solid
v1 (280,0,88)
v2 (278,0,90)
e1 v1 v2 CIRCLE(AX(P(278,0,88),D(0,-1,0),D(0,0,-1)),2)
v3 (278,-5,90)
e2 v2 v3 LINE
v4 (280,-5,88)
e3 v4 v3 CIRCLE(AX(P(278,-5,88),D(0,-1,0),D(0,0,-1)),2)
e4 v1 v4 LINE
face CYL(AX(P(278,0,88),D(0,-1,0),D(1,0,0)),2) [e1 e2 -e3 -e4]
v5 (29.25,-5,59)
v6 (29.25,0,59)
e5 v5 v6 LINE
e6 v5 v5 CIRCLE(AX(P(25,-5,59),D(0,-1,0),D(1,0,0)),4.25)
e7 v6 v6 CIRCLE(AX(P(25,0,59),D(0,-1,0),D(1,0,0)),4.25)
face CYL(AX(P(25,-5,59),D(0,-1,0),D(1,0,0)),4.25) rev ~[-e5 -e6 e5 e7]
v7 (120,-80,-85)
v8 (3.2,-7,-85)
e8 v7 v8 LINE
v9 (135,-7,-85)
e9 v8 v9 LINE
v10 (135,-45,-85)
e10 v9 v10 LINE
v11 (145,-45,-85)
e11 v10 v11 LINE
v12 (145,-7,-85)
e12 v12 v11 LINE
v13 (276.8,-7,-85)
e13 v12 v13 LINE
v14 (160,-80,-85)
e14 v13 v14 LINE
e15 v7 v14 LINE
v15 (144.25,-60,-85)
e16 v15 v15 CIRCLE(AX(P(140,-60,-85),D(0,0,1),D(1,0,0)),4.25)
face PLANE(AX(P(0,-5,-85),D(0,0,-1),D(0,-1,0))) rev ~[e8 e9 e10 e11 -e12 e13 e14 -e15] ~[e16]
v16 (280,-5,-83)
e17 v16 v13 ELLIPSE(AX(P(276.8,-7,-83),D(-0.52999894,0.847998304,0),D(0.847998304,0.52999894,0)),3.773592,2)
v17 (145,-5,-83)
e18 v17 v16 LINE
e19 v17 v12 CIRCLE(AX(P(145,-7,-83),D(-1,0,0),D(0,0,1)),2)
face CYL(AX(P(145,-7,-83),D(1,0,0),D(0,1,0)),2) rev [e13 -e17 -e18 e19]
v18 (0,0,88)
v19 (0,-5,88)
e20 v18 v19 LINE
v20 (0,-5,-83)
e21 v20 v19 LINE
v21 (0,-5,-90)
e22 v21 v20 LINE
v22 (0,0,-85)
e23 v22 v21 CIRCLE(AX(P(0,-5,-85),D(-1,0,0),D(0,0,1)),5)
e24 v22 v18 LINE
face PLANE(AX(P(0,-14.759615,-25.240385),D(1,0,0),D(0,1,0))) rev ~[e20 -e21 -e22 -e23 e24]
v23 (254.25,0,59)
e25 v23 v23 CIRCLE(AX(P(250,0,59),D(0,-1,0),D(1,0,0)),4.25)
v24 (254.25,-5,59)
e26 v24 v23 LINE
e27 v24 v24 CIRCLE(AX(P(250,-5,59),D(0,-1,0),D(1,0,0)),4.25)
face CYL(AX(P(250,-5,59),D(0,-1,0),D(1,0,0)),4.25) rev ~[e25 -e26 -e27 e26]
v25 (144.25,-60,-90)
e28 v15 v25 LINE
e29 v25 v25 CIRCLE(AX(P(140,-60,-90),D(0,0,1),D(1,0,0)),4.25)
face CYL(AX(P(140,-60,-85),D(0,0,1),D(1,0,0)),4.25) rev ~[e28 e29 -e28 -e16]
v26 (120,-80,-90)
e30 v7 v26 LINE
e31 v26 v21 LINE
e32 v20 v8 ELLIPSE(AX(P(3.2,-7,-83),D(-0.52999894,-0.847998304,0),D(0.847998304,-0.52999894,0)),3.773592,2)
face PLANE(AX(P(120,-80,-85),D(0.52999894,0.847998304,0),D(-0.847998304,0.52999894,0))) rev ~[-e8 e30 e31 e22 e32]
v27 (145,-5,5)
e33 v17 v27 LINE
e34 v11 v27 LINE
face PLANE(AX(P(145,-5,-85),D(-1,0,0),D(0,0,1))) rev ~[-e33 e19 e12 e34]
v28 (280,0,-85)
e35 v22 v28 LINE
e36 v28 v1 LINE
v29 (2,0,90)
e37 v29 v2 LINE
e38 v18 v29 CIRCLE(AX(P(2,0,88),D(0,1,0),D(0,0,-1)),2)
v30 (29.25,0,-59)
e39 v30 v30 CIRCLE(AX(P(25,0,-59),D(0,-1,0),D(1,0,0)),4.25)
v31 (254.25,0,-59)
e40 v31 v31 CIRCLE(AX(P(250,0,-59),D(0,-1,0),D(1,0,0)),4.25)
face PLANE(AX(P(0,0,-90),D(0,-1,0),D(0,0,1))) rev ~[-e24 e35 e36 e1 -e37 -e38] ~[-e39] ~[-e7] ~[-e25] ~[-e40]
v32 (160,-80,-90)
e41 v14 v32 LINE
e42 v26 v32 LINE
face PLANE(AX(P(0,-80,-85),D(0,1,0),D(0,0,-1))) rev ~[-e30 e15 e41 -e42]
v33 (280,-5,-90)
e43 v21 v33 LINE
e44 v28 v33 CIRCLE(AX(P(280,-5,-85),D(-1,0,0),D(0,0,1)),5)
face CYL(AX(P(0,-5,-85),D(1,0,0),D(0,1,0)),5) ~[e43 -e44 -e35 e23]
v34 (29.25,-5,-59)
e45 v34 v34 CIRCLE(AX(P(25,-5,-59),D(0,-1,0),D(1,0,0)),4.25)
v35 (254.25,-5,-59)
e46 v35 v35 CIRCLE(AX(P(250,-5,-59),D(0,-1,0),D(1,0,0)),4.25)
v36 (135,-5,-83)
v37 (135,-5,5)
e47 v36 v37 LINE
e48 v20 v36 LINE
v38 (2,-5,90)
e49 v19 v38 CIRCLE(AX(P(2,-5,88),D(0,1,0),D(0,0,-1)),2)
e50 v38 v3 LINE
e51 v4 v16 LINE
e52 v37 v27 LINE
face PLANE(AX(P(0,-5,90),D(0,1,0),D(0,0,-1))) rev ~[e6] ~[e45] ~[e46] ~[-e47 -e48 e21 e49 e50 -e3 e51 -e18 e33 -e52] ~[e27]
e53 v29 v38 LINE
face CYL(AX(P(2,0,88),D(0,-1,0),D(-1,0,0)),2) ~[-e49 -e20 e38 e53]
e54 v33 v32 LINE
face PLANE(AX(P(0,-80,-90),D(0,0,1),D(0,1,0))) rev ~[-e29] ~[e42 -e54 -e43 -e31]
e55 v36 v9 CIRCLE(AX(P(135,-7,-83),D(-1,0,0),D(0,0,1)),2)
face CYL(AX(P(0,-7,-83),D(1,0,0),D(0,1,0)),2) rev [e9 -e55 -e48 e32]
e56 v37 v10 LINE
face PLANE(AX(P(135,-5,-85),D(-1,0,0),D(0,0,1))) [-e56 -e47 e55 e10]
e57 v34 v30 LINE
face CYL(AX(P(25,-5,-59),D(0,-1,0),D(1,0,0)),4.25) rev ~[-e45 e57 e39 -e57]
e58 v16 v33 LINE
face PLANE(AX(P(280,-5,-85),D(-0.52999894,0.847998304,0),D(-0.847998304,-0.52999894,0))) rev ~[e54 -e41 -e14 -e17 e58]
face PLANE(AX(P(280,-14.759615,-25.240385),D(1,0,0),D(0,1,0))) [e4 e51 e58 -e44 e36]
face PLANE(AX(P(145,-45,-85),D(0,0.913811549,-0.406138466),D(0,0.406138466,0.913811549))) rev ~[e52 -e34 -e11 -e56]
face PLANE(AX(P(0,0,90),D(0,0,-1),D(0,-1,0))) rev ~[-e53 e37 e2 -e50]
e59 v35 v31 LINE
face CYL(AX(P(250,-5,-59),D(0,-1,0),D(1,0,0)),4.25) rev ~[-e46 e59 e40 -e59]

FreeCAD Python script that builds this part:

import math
import FreeCAD as App
import Part
import Sketcher
from FreeCAD import Vector
Q = App.Units.Quantity


def edges_at(feature, points):
    """Names of the edges that pass closest to the given points."""
    edges = feature.Shape.Edges
    near = lambda p: min(range(len(edges)), key=lambda i: edges[i].distToShape(Part.Vertex(*p))[0])
    return sorted({f"Edge{near(p) + 1}" for p in points})

doc = App.newDocument("Part")
body = doc.addObject("PartDesign::Body", "Body")

# Sketch on YZ plane
sketch1 = doc.addObject("Sketcher::SketchObject", "Sketch")
body.addObject(sketch1)
sketch1.AttachmentSupport = (doc.YZ_Plane, [""])
sketch1.MapMode = "FlatFace"
sketch1.addGeometry(Part.LineSegment(Vector(0, -90, 0), Vector(0, 90, 0)), False)
sketch1.addGeometry(Part.LineSegment(Vector(0, 90, 0), Vector(-5, 90, 0)), False)
sketch1.addGeometry(Part.LineSegment(Vector(-5, 90, 0), Vector(-5, -85, 0)), False)
sketch1.addGeometry(Part.LineSegment(Vector(-5, -85, 0), Vector(-80, -85, 0)), False)
sketch1.addGeometry(Part.LineSegment(Vector(-80, -85, 0), Vector(-80, -90, 0)), False)
sketch1.addGeometry(Part.LineSegment(Vector(-80, -90, 0), Vector(0, -90, 0)), False)
sketch1.addConstraint(Sketcher.Constraint("Coincident", 0, 2, 1, 1))
sketch1.addConstraint(Sketcher.Constraint("Coincident", 1, 2, 2, 1))
sketch1.addConstraint(Sketcher.Constraint("Coincident", 2, 2, 3, 1))
sketch1.addConstraint(Sketcher.Constraint("Coincident", 3, 2, 4, 1))
sketch1.addConstraint(Sketcher.Constraint("Coincident", 4, 2, 5, 1))
sketch1.addConstraint(Sketcher.Constraint("Coincident", 5, 2, 0, 1))
sketch1.addConstraint(Sketcher.Constraint("Vertical", 0))
sketch1.addConstraint(Sketcher.Constraint("Horizontal", 1))
sketch1.addConstraint(Sketcher.Constraint("Vertical", 2))
sketch1.addConstraint(Sketcher.Constraint("Horizontal", 3))
sketch1.addConstraint(Sketcher.Constraint("Vertical", 4))
sketch1.addConstraint(Sketcher.Constraint("Horizontal", 5))
sketch1.addConstraint(Sketcher.Constraint("Symmetric", 0, 2, 5, 2, -1, 1))
sketch1.addConstraint(Sketcher.Constraint("Equal", 1, 4))
sketch1.addConstraint(Sketcher.Constraint("DistanceX", 1, 2, 1, 1, Q("5 mm")))
sketch1.addConstraint(Sketcher.Constraint("DistanceX", 3, 2, 3, 1, Q("75 mm")))
sketch1.addConstraint(Sketcher.Constraint("DistanceY", 0, 1, 0, 2, Q("180 mm")))
pad1 = doc.addObject("PartDesign::Pad", "Pad")
body.addObject(pad1)
pad1.Profile = sketch1
pad1.Length = 280

# Sketch on XZ plane
sketch2 = doc.addObject("Sketcher::SketchObject", "Sketch001")
body.addObject(sketch2)
sketch2.AttachmentSupport = (doc.XZ_Plane, [""])
sketch2.MapMode = "FlatFace"
sketch2.AttachmentOffset = App.Placement(Vector(0, 0, 5), App.Rotation())
sketch2.addGeometry(Part.Circle(Vector(25, 59, 0), Vector(0, 0, 1), 4.2), False)
sketch2.addGeometry(Part.Circle(Vector(25, -59, 0), Vector(0, 0, 1), 4.2), False)
sketch2.addGeometry(Part.Circle(Vector(250, -59, 0), Vector(0, 0, 1), 4.2), False)
sketch2.addGeometry(Part.Circle(Vector(250, 59, 0), Vector(0, 0, 1), 4.2), False)
sketch2.addConstraint(Sketcher.Constraint("Equal", 0, 1))
sketch2.addConstraint(Sketcher.Constraint("Equal", 1, 2))
sketch2.addConstraint(Sketcher.Constraint("Equal", 2, 3))
sketch2.addConstraint(Sketcher.Constraint("Symmetric", 0, 3, 1, 3, -1))
sketch2.addConstraint(Sketcher.Constraint("Symmetric", 2, 3, 3, 3, -1))
sketch2.addConstraint(Sketcher.Constraint("Horizontal", 1, 3, 2, 3))
sketch2.addConstraint(Sketcher.Constraint("Diameter", 0, Q("8.5 mm")))
sketch2.addConstraint(Sketcher.Constraint("DistanceX", -1, 1, 0, 3, Q("25 mm")))
sketch2.addConstraint(Sketcher.Constraint("DistanceY", -1, 1, 0, 3, Q("59 mm")))
sketch2.addConstraint(Sketcher.Constraint("DistanceX", -1, 1, 2, 3, Q("250 mm")))
pocket1 = doc.addObject("PartDesign::Pocket", "Pocket")
body.addObject(pocket1)
pocket1.Profile = sketch2
pocket1.Type = "ThroughAll"
doc.recompute()

fillet = doc.addObject("PartDesign::Fillet", "Fillet")
body.addObject(fillet)
fillet.Base = (pocket1, edges_at(pocket1, [
    (0, -2.5, 90),
    (280, -2.5, 90),
    (280, -80, -87.5),
    (0, -80, -87.5),
]))
fillet.Radius = 2

# Sketch on XY plane
sketch3 = doc.addObject("Sketcher::SketchObject", "Sketch002")
body.addObject(sketch3)
sketch3.AttachmentSupport = (doc.XY_Plane, [""])
sketch3.MapMode = "FlatFace"
sketch3.AttachmentOffset = App.Placement(Vector(0, 0, -85), App.Rotation())
sketch3.addGeometry(Part.Circle(Vector(140, -60, 0), Vector(0, 0, 1), 4.2), False)
sketch3.addConstraint(Sketcher.Constraint("Diameter", 0, Q("8.5 mm")))
sketch3.addConstraint(Sketcher.Constraint("DistanceX", -1, 1, 0, 3, Q("140 mm")))
sketch3.addConstraint(Sketcher.Constraint("DistanceY", 0, 3, -1, 1, Q("60 mm")))
pocket2 = doc.addObject("PartDesign::Pocket", "Pocket001")
body.addObject(pocket2)
pocket2.Profile = sketch3
pocket2.Type = "ThroughAll"
doc.recompute()

fillet2 = doc.addObject("PartDesign::Fillet", "Fillet001")
body.addObject(fillet2)
fillet2.Base = (pocket2, edges_at(pocket2, [(140, 0, -90)]))
fillet2.Radius = 5

# Sketch on XZ plane
sketch4 = doc.addObject("Sketcher::SketchObject", "Sketch003")
body.addObject(sketch4)
sketch4.AttachmentSupport = (doc.XZ_Plane, [""])
sketch4.MapMode = "FlatFace"
sketch4.AttachmentOffset = App.Placement(Vector(0, 0, 5), App.Rotation())
sketch4.addGeometry(Part.LineSegment(Vector(135, 5, 0), Vector(135, -85, 0)), False)
sketch4.addGeometry(Part.LineSegment(Vector(135, -85, 0), Vector(145, -85, 0)), False)
sketch4.addGeometry(Part.LineSegment(Vector(145, -85, 0), Vector(145, 5, 0)), False)
sketch4.addGeometry(Part.LineSegment(Vector(145, 5, 0), Vector(135, 5, 0)), False)
sketch4.addConstraint(Sketcher.Constraint("Coincident", 0, 2, 1, 1))
sketch4.addConstraint(Sketcher.Constraint("Coincident", 1, 2, 2, 1))
sketch4.addConstraint(Sketcher.Constraint("Coincident", 2, 2, 3, 1))
sketch4.addConstraint(Sketcher.Constraint("Coincident", 3, 2, 0, 1))
sketch4.addConstraint(Sketcher.Constraint("Vertical", 0))
sketch4.addConstraint(Sketcher.Constraint("Horizontal", 1))
sketch4.addConstraint(Sketcher.Constraint("Vertical", 2))
sketch4.addConstraint(Sketcher.Constraint("Horizontal", 3))
sketch4.addConstraint(Sketcher.Constraint("DistanceX", 1, 1, 1, 2, Q("10 mm")))
sketch4.addConstraint(Sketcher.Constraint("DistanceY", 0, 2, 0, 1, Q("90 mm")))
sketch4.addConstraint(Sketcher.Constraint("DistanceX", -1, 1, 0, 2, Q("135 mm")))
sketch4.addConstraint(Sketcher.Constraint("DistanceY", 0, 2, -1, 1, Q("85 mm")))
pad2 = doc.addObject("PartDesign::Pad", "Pad001")
body.addObject(pad2)
pad2.Profile = sketch4
pad2.Length = 40

# Sketch on YZ plane
sketch5 = doc.addObject("Sketcher::SketchObject", "Sketch004")
body.addObject(sketch5)
sketch5.AttachmentSupport = (doc.YZ_Plane, [""])
sketch5.MapMode = "FlatFace"
sketch5.AttachmentOffset = App.Placement(Vector(0, 0, 145), App.Rotation())
sketch5.addGeometry(Part.LineSegment(Vector(-45, -85, 0), Vector(-5, 5, 0)), False)
sketch5.addGeometry(Part.LineSegment(Vector(-5, 5, 0), Vector(-45, 5, 0)), False)
sketch5.addGeometry(Part.LineSegment(Vector(-45, 5, 0), Vector(-45, -85, 0)), False)
sketch5.addConstraint(Sketcher.Constraint("Coincident", 0, 2, 1, 1))
sketch5.addConstraint(Sketcher.Constraint("Coincident", 1, 2, 2, 1))
sketch5.addConstraint(Sketcher.Constraint("Coincident", 2, 2, 0, 1))
sketch5.addConstraint(Sketcher.Constraint("Horizontal", 1))
sketch5.addConstraint(Sketcher.Constraint("Vertical", 2))
sketch5.addConstraint(Sketcher.Constraint("DistanceX", 1, 2, 1, 1, Q("40 mm")))
sketch5.addConstraint(Sketcher.Constraint("DistanceY", 2, 2, 2, 1, Q("90 mm")))
sketch5.addConstraint(Sketcher.Constraint("DistanceX", 0, 2, -1, 1, Q("5 mm")))
sketch5.addConstraint(Sketcher.Constraint("DistanceY", -1, 1, 0, 2, Q("5 mm")))
pocket3 = doc.addObject("PartDesign::Pocket", "Pocket002")
body.addObject(pocket3)
pocket3.Profile = sketch5
pocket3.Type = "ThroughAll"

# Sketch on XY plane
sketch6 = doc.addObject("Sketcher::SketchObject", "Sketch005")
body.addObject(sketch6)
sketch6.AttachmentSupport = (doc.XY_Plane, [""])
sketch6.MapMode = "FlatFace"
sketch6.AttachmentOffset = App.Placement(Vector(0, 0, -85), App.Rotation())
sketch6.addGeometry(Part.LineSegment(Vector(2, -80, 0), Vector(120, -80, 0)), False)
sketch6.addGeometry(Part.LineSegment(Vector(120, -80, 0), Vector(0, -5, 0)), False)
sketch6.addGeometry(Part.LineSegment(Vector(0, -5, 0), Vector(0, -78, 0)), False)
sketch6.addGeometry(Part.ArcOfCircle(Part.Circle(Vector(2, -78, 0), Vector(0, 0, 1), 2), math.radians(180), math.radians(270)), False)
sketch6.addGeometry(Part.LineSegment(Vector(280, -78, 0), Vector(280, -5, 0)), False)
sketch6.addGeometry(Part.LineSegment(Vector(280, -5, 0), Vector(160, -80, 0)), False)
sketch6.addGeometry(Part.LineSegment(Vector(160, -80, 0), Vector(278, -80, 0)), False)
sketch6.addGeometry(Part.ArcOfCircle(Part.Circle(Vector(278, -78, 0), Vector(0, 0, 1), 2), math.radians(-90), math.radians(0)), False)
sketch6.addConstraint(Sketcher.Constraint("Coincident", 0, 2, 1, 1))
sketch6.addConstraint(Sketcher.Constraint("Coincident", 1, 2, 2, 1))
sketch6.addConstraint(Sketcher.Constraint("Tangent", 2, 2, 3, 1))
sketch6.addConstraint(Sketcher.Constraint("Tangent", 3, 2, 0, 1))
sketch6.addConstraint(Sketcher.Constraint("Coincident", 4, 2, 5, 1))
sketch6.addConstraint(Sketcher.Constraint("Coincident", 5, 2, 6, 1))
sketch6.addConstraint(Sketcher.Constraint("Tangent", 6, 2, 7, 1))
sketch6.addConstraint(Sketcher.Constraint("Tangent", 7, 2, 4, 1))
sketch6.addConstraint(Sketcher.Constraint("Horizontal", 0))
sketch6.addConstraint(Sketcher.Constraint("Vertical", 2))
sketch6.addConstraint(Sketcher.Constraint("Vertical", 4))
sketch6.addConstraint(Sketcher.Constraint("Horizontal", 6))
sketch6.addConstraint(Sketcher.Constraint("Equal", 3, 7))
sketch6.addConstraint(Sketcher.Constraint("PointOnObject", 1, 2, -2))
sketch6.addConstraint(Sketcher.Constraint("Horizontal", 3, 3, 7, 3))
sketch6.addConstraint(Sketcher.Constraint("Horizontal", 1, 2, 4, 2))
sketch6.addConstraint(Sketcher.Constraint("Equal", 0, 6))
sketch6.addConstraint(Sketcher.Constraint("Radius", 3, Q("2 mm")))
sketch6.addConstraint(Sketcher.Constraint("DistanceX", 0, 1, 0, 2, Q("118 mm")))
sketch6.addConstraint(Sketcher.Constraint("DistanceY", 2, 2, 2, 1, Q("73 mm")))
sketch6.addConstraint(Sketcher.Constraint("DistanceY", 3, 3, -1, 1, Q("78 mm")))
sketch6.addConstraint(Sketcher.Constraint("DistanceX", -1, 1, 7, 3, Q("278 mm")))
pocket4 = doc.addObject("PartDesign::Pocket", "Pocket003")
body.addObject(pocket4)
pocket4.Profile = sketch6
pocket4.Type = "ThroughAll"
doc.recompute()

fillet3 = doc.addObject("PartDesign::Fillet", "Fillet002")
body.addObject(fillet3)
fillet3.Base = (pocket4, edges_at(pocket4, [(67.5, -5, -85), (212.5, -5, -85)]))
fillet3.Radius = 2

doc.recompute()
